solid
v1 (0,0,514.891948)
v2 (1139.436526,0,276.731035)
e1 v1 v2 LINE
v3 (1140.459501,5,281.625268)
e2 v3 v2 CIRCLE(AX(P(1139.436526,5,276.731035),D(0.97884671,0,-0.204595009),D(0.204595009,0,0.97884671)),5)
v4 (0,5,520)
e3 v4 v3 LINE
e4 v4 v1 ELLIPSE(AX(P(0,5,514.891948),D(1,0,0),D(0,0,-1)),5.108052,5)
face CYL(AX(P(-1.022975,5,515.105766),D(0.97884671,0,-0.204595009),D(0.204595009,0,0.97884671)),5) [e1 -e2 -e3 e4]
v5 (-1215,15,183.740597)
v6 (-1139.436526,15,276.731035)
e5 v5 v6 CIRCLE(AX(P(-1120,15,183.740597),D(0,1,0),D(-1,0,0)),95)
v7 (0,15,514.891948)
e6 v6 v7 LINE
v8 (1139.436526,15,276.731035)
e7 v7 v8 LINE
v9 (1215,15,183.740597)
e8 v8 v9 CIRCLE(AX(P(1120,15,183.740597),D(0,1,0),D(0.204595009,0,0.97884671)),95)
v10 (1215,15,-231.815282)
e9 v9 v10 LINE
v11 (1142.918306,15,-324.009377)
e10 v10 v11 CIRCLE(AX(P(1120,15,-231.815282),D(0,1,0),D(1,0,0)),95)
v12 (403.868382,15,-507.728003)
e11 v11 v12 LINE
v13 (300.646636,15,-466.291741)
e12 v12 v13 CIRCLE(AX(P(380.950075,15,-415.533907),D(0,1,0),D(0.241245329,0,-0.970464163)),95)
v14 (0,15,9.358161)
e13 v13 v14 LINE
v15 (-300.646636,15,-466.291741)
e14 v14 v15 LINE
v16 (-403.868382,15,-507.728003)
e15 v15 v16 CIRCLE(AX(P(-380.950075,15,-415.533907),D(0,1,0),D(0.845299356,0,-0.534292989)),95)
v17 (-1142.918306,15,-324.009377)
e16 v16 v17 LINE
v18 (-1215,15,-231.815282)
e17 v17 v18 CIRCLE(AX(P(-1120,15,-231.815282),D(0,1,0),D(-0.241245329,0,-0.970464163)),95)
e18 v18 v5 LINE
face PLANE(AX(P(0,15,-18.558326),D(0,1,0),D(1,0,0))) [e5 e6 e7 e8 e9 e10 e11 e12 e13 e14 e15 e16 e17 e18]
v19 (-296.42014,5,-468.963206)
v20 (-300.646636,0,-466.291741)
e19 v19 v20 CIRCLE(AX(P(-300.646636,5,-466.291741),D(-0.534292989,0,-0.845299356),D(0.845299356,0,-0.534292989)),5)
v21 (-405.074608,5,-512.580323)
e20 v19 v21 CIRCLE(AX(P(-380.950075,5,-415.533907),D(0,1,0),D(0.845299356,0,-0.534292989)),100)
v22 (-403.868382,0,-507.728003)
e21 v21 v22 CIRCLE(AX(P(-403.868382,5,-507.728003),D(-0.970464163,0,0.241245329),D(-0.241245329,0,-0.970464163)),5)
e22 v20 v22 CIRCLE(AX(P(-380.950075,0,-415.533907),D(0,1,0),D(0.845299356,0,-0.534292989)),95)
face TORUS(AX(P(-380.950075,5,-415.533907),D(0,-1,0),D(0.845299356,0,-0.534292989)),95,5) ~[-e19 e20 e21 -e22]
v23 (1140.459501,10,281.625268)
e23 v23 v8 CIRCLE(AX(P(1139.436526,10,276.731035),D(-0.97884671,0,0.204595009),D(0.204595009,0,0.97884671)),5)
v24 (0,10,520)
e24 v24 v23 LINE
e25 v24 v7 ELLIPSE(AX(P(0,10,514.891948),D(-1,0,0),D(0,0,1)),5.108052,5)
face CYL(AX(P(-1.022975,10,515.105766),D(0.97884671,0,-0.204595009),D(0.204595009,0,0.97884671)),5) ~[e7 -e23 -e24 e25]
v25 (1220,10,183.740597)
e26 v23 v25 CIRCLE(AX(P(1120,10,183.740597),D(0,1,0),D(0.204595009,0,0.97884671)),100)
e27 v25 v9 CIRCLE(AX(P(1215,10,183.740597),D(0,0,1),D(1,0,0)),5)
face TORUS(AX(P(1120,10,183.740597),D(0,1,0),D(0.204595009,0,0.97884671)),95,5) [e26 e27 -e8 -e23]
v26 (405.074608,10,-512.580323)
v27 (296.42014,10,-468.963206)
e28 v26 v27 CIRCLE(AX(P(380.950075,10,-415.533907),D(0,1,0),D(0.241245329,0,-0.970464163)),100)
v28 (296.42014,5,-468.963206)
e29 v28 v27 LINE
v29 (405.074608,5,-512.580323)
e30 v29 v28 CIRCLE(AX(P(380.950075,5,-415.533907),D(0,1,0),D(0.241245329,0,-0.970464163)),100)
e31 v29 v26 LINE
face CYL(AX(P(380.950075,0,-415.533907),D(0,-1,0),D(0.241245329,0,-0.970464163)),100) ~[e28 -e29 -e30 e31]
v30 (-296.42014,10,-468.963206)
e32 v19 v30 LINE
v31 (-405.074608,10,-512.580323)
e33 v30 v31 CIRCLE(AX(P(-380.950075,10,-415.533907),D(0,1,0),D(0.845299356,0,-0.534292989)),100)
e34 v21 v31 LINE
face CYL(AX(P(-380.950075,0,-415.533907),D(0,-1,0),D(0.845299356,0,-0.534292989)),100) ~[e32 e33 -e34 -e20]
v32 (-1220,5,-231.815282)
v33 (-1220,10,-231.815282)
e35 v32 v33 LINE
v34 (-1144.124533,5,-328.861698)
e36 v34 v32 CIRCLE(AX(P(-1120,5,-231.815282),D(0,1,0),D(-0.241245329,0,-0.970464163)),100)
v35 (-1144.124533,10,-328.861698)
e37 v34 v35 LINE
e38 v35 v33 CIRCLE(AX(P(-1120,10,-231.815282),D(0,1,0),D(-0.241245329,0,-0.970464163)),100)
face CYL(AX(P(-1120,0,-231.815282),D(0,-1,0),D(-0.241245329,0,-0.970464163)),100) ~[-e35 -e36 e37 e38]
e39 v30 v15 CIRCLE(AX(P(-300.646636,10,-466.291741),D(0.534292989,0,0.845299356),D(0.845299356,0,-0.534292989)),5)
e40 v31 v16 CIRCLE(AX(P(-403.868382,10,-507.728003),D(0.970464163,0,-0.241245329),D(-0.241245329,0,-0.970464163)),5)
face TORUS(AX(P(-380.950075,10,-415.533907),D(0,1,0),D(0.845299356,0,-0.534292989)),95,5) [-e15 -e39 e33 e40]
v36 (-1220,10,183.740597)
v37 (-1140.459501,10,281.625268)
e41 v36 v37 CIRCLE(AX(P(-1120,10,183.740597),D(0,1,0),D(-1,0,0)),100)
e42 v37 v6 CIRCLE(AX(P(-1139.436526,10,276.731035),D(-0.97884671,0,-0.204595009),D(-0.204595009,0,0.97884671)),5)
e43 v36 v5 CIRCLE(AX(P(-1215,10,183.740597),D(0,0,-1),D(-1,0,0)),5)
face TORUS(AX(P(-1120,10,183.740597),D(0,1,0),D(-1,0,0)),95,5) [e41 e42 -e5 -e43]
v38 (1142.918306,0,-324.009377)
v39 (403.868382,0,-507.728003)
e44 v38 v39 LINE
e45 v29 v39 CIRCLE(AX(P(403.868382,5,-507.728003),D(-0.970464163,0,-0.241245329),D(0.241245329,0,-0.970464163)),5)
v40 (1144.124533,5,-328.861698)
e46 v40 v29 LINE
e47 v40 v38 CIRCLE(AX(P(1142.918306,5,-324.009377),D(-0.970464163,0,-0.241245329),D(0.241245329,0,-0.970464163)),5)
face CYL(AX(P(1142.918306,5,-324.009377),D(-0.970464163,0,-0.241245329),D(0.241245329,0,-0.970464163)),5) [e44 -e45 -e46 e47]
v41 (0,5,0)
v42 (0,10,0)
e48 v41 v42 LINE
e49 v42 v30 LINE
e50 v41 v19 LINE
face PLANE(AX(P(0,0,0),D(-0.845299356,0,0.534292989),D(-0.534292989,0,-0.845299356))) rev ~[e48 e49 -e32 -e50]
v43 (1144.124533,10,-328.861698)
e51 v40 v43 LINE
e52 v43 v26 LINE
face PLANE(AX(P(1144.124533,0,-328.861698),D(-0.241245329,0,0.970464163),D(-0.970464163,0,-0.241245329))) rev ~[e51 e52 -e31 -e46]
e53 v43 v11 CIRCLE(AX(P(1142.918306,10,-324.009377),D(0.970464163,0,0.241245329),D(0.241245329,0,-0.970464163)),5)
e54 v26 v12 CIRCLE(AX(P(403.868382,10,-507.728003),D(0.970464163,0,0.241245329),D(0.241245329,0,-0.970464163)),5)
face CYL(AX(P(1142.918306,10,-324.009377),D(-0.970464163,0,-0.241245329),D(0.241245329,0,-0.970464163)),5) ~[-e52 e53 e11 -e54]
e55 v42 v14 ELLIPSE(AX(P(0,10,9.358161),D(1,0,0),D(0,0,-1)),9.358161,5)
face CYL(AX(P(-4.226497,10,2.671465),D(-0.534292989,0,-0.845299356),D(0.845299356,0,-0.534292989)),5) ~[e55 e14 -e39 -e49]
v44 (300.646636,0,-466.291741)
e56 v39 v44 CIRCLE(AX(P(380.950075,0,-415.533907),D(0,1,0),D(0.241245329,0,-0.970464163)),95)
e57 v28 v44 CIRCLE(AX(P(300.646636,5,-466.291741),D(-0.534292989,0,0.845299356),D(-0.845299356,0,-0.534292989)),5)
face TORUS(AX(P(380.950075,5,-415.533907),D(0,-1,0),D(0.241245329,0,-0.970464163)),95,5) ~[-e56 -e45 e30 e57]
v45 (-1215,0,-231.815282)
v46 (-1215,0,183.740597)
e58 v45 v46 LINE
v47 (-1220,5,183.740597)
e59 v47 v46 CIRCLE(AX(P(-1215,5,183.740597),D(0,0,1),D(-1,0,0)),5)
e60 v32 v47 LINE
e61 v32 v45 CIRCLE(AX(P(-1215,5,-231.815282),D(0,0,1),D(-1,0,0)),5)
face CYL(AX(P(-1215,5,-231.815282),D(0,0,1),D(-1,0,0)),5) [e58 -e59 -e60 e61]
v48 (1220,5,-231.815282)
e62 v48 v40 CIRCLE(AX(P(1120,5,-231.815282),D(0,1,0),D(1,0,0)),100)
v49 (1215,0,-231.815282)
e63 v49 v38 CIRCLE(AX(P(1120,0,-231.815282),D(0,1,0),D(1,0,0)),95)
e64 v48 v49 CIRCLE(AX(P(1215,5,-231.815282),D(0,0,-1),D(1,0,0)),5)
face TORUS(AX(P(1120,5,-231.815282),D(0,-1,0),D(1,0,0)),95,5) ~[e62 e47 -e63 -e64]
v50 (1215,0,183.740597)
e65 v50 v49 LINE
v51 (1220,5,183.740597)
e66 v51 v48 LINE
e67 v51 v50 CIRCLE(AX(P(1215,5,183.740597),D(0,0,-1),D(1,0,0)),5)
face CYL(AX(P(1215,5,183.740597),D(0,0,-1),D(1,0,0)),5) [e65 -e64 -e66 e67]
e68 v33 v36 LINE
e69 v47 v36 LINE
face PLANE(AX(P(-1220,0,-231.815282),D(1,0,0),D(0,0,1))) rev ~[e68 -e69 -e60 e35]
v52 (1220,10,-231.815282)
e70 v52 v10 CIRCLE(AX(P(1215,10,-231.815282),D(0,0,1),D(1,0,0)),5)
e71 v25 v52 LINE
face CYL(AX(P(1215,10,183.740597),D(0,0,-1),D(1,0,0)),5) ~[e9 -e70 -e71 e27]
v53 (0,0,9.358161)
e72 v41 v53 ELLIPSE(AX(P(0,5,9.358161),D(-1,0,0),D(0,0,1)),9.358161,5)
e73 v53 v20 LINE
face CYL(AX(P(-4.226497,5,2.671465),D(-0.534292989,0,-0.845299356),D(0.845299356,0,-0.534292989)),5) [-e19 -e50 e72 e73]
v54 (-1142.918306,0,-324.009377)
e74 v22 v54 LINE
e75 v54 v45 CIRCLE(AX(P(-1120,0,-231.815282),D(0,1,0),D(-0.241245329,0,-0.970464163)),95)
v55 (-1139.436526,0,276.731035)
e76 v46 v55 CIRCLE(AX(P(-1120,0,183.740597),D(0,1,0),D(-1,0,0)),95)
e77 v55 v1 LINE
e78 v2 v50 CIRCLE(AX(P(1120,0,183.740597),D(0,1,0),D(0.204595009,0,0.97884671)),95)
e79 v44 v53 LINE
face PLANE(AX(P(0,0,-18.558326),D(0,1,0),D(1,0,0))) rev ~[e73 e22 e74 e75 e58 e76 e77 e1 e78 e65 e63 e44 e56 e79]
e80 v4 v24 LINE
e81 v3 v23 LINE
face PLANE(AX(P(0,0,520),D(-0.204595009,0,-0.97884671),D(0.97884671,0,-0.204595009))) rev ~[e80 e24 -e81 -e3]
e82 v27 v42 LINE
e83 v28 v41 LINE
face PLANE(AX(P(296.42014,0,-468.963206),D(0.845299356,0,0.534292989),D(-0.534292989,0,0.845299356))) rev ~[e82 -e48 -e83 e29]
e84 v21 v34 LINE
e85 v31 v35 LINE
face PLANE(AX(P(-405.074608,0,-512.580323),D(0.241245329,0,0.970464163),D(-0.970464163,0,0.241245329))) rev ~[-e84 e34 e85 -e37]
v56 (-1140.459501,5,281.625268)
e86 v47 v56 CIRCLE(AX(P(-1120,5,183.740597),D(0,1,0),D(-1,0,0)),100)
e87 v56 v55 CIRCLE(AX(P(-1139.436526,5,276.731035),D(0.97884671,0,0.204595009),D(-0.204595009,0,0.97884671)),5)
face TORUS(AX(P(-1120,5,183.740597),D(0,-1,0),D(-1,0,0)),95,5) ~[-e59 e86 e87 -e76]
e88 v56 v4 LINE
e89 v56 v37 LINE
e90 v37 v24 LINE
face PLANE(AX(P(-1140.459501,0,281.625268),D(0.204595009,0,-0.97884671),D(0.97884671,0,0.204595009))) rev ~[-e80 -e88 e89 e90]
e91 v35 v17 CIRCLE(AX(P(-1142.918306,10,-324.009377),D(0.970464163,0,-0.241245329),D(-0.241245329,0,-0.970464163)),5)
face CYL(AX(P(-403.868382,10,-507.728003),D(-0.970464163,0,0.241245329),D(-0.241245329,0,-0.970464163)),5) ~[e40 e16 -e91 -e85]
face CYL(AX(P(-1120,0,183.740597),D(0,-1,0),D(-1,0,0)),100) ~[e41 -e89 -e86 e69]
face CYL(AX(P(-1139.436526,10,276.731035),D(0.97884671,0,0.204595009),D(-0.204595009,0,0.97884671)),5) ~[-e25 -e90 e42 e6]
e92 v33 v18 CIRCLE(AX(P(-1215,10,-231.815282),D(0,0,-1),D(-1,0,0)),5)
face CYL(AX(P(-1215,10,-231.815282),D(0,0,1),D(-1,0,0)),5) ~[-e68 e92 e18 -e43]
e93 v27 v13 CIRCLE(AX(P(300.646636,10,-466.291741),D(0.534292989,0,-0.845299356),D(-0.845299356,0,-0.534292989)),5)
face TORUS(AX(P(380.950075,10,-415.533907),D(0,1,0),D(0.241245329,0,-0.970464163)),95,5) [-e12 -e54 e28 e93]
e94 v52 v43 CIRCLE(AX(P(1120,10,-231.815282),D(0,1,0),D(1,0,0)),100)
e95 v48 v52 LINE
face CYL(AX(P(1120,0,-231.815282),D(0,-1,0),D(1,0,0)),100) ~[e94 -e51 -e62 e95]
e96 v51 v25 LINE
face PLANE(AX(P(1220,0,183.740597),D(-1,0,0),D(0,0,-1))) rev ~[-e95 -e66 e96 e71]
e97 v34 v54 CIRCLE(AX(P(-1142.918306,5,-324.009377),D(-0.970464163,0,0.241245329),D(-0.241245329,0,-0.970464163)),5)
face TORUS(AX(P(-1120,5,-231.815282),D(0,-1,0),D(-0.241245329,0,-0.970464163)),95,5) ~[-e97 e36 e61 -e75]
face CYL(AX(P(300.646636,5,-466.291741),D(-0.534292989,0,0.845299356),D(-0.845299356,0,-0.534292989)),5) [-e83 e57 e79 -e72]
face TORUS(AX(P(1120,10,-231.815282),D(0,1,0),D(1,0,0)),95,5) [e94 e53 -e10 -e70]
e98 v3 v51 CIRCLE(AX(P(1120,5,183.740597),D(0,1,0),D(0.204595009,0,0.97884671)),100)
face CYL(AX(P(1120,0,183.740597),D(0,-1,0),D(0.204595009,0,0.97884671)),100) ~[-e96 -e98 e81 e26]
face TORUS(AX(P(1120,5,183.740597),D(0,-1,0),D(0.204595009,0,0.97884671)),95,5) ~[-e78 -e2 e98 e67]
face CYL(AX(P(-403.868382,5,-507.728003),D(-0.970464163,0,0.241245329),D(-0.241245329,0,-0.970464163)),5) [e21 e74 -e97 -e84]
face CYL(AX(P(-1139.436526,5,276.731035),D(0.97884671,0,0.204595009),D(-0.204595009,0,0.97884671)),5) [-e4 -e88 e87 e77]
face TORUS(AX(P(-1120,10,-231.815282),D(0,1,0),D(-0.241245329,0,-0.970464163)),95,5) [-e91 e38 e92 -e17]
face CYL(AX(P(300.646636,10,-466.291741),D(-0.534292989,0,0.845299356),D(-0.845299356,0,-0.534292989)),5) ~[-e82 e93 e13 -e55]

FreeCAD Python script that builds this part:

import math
import FreeCAD as App
import Part
import Sketcher
from FreeCAD import Vector
Q = App.Units.Quantity


def edges_at(feature, points):
    """Names of the edges that pass closest to the given points."""
    edges = feature.Shape.Edges
    near = lambda p: min(range(len(edges)), key=lambda i: edges[i].distToShape(Part.Vertex(*p))[0])
    return sorted({f"Edge{near(p) + 1}" for p in points})

doc = App.newDocument("Part")
body = doc.addObject("PartDesign::Body", "Body")

sketch1 = body.newObject("Sketcher::SketchObject", "Sketch")
sketch1.AttachmentSupport = (doc.getObject("XZ_Plane"), [""])
sketch1.MapMode = "FlatFace"
sketch1.addGeometry([
    Part.LineSegment(Vector(0, 0, 0), Vector(-296, -469, 0)),
    Part.ArcOfCircle(Part.Circle(Vector(-381, -416, 0), Vector(0, 0, 1), 100), math.radians(-104), math.radians(-32)),
    Part.LineSegment(Vector(-405, -513, 0), Vector(-1144, -329, 0)),
    Part.ArcOfCircle(Part.Circle(Vector(-1120, -232, 0), Vector(0, 0, 1), 100), math.radians(-180), math.radians(-104)),
    Part.LineSegment(Vector(-1220, -232, 0), Vector(-1220, 184, 0)),
    Part.ArcOfCircle(Part.Circle(Vector(-1120, 184, 0), Vector(0, 0, 1), 100), math.radians(102), math.radians(180)),
    Part.LineSegment(Vector(-1140, 282, 0), Vector(0, 520, 0)),
    Part.LineSegment(Vector(0, 520, 0), Vector(1140, 282, 0)),
    Part.ArcOfCircle(Part.Circle(Vector(1120, 184, 0), Vector(0, 0, 1), 100), math.radians(0), math.radians(78)),
    Part.LineSegment(Vector(1220, 184, 0), Vector(1220, -232, 0)),
    Part.ArcOfCircle(Part.Circle(Vector(1120, -232, 0), Vector(0, 0, 1), 100), math.radians(-76), math.radians(0)),
    Part.LineSegment(Vector(1144, -329, 0), Vector(405, -513, 0)),
    Part.ArcOfCircle(Part.Circle(Vector(381, -416, 0), Vector(0, 0, 1), 100), math.radians(-148), math.radians(-76)),
    Part.LineSegment(Vector(296, -469, 0), Vector(0, 0, 0)),
], False)
sketch1.addConstraint([
    Sketcher.Constraint("Tangent", 0, 2, 1, 2),
    Sketcher.Constraint("Tangent", 1, 1, 2, 1),
    Sketcher.Constraint("Tangent", 2, 2, 3, 2),
    Sketcher.Constraint("Tangent", 3, 1, 4, 1),
    Sketcher.Constraint("Tangent", 4, 2, 5, 2),
    Sketcher.Constraint("Tangent", 5, 1, 6, 1),
    Sketcher.Constraint("Coincident", 6, 2, 7, 1),
    Sketcher.Constraint("Tangent", 7, 2, 8, 2),
    Sketcher.Constraint("Tangent", 8, 1, 9, 1),
    Sketcher.Constraint("Tangent", 9, 2, 10, 2),
    Sketcher.Constraint("Tangent", 10, 1, 11, 1),
    Sketcher.Constraint("Tangent", 11, 2, 12, 2),
    Sketcher.Constraint("Tangent", 12, 1, 13, 1),
    Sketcher.Constraint("Coincident", 13, 2, 0, 1),
    Sketcher.Constraint("Vertical", 4),
    Sketcher.Constraint("Vertical", 9),
    Sketcher.Constraint("Coincident", 13, 2, -1, 1),
    Sketcher.Constraint("Equal", 1, 3),
    Sketcher.Constraint("Equal", 3, 5),
    Sketcher.Constraint("Equal", 5, 8),
    Sketcher.Constraint("Equal", 8, 10),
    Sketcher.Constraint("Equal", 10, 12),
    Sketcher.Constraint("Symmetric", 5, 3, 8, 3, -2),
    Sketcher.Constraint("Symmetric", 1, 3, 12, 3, -2),
    Sketcher.Constraint("PointOnObject", 6, 2, -2),
    Sketcher.Constraint("Horizontal", 3, 3, 10, 3),
    Sketcher.Constraint("Radius", 1, Q("100 mm")),
    Sketcher.Constraint("DistanceX", 3, 3, -1, 1, Q("1120 mm")),
    Sketcher.Constraint("DistanceY", -1, 1, 6, 2, Q("520 mm")),
    Sketcher.Constraint("Distance", 0, Q("554.789499 mm")),
    Sketcher.Constraint("DistanceY", 4, 1, 4, 2, Q("415.555879 mm")),
    Sketcher.Constraint("DistanceY", 2, 2, -1, 1, Q("328.861698 mm")),
    Sketcher.Constraint("DistanceY", 0, 2, 1, 3, Q("53.429299 mm")),
])
pad1 = body.newObject("PartDesign::Pad", "Pad")
pad1.Profile = sketch1
pad1.Length = 15
pad1.Reversed = True
doc.recompute()

fillet = body.newObject("PartDesign::Fillet", "Fillet")
fillet.Base = (pad1, edges_at(pad1, [
    (-343.697, 15, -508.336),
    (343.697, 0, -508.336),
    (774.6, 0, -420.721),
    (1198.78, 0, -293.409),
    (1220, 0, -24.037),
    (1197.608, 0, 246.804),
    (570.23, 0, 400.813),
    (-570.23, 0, 400.813),
    (-1197.608, 0, 246.804),
    (-774.6, 15, -420.721),
    (-1220, 0, -24.037),
    (-1198.78, 0, -293.409),
    (-774.6, 0, -420.721),
    (-343.697, 0, -508.336),
    (-148.21, 0, -234.482),
    (148.21, 0, -234.482),
    (-1198.78, 15, -293.409),
    (-1220, 15, -24.037),
    (-1197.608, 15, 246.804),
    (-570.23, 15, 400.813),
    (570.23, 15, 400.813),
    (1197.608, 15, 246.804),
    (1220, 15, -24.037),
    (1198.78, 15, -293.409),
    (148.21, 15, -234.482),
    (774.6, 15, -420.721),
    (343.697, 15, -508.336),
    (-148.21, 15, -234.482),
]))
fillet.Radius = 5

doc.recompute()
